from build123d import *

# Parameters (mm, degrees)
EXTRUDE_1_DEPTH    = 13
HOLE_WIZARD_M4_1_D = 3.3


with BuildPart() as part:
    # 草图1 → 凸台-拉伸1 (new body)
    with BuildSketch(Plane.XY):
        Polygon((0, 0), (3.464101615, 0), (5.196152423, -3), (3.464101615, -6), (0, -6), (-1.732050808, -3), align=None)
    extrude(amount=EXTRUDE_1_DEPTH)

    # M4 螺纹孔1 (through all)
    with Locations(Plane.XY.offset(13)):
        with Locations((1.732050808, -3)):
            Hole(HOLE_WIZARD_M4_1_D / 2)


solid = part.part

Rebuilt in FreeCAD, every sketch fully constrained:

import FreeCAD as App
import Part
import Sketcher
from FreeCAD import Vector
Q = App.Units.Quantity


def add_polygon(sketch, points):
    """Adds a closed chain of lines whose ends are joined by coincident constraints."""
    first, n = sketch.GeometryCount, len(points)
    for a, b in zip(points, points[1:] + points[:1]):
        sketch.addGeometry(Part.LineSegment(App.Vector(*a, 0), App.Vector(*b, 0)), False)
    for i in range(n):
        sketch.addConstraint(Sketcher.Constraint("Coincident", first + i, 2, first + (i + 1) % n, 1))

doc = App.newDocument("Part")
body = doc.addObject("PartDesign::Body", "Body")

# Sketch on XY plane
sketch1 = doc.addObject("Sketcher::SketchObject", "Sketch")
body.addObject(sketch1)
sketch1.AttachmentSupport = (doc.XY_Plane, [""])
sketch1.MapMode = "FlatFace"
add_polygon(sketch1, [(3.5, 0), (0, 0), (-1.7, -3), (0, -6), (3.5, -6), (5.2, -3)])  # lines 0-5
sketch1.addConstraint([
    Sketcher.Constraint("Horizontal", 0),
    Sketcher.Constraint("Horizontal", 3),
    Sketcher.Constraint("Coincident", 0, 2, -1, 1),
    Sketcher.Constraint("PointOnObject", 2, 2, -2),
    Sketcher.Constraint("Parallel", 1, 4),
    Sketcher.Constraint("Parallel", 2, 5),
    Sketcher.Constraint("Horizontal", 1, 2, 4, 2),
    Sketcher.Constraint("Vertical", 3, 2, 5, 2),
    Sketcher.Constraint("Angle", 1, Q("-120 deg")),
    Sketcher.Constraint("DistanceY", 1, 2, -1, 1, 3.0),
    Sketcher.Constraint("DistanceX", 0, 2, 0, 1, 3.464102),
])
pad1 = doc.addObject("PartDesign::Pad", "Pad")
body.addObject(pad1)
pad1.Profile = sketch1
pad1.Length = 13

# Sketch on XY plane
sketch2 = doc.addObject("Sketcher::SketchObject", "Sketch001")
body.addObject(sketch2)
sketch2.AttachmentSupport = (doc.XY_Plane, [""])
sketch2.MapMode = "FlatFace"
sketch2.AttachmentOffset = App.Placement(Vector(0, 0, 13), App.Rotation())
sketch2.addGeometry(Part.Circle(Vector(1.7, -3, 0), Vector(0, 0, 1), 1.6), False)
sketch2.addConstraint([
    Sketcher.Constraint("Diameter", 0, 3.3),
    Sketcher.Constraint("DistanceY", 0, 3, -1, 1, 3.0),
    Sketcher.Constraint("DistanceX", -1, 1, 0, 3, 1.732051),
])
doc.recompute()
hole = doc.addObject("PartDesign::Hole", "Hole")
body.addObject(hole)
hole.Profile = sketch2
hole.ThreadType = "None"
hole.Diameter = 3.3
hole.DepthType = "ThroughAll"

doc.recompute()
